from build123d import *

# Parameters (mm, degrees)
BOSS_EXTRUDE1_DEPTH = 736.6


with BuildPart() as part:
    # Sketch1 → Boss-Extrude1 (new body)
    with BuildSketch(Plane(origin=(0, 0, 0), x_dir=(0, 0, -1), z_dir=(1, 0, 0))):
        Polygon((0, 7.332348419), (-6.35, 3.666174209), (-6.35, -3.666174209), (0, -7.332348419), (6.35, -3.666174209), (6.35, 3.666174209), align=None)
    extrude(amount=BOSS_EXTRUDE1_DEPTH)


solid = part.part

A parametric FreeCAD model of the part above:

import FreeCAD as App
import Part
import Sketcher
Q = App.Units.Quantity

doc = App.newDocument("Part")
params = doc.addObject("Spreadsheet::Sheet", "Params")
for row, (alias, value) in enumerate([
    ("pad1_length", "29 in"),
], start=1):
    params.set(f"A{row}", alias)
    params.set(f"B{row}", "=" + value)
    params.setAlias(f"B{row}", alias)

body = doc.addObject("PartDesign::Body", "Body")

sketch1 = body.newObject("Sketcher::SketchObject", "Sketch")
sketch1.AttachmentSupport = (doc.getObject("YZ_Plane"), [""])
sketch1.MapMode = "FlatFace"
sketch1.addGeometry([
    Part.LineSegment(App.Vector(7, 0, 0), App.Vector(4, 6, 0)),
    Part.LineSegment(App.Vector(4, 6, 0), App.Vector(-4, 6, 0)),
    Part.LineSegment(App.Vector(-4, 6, 0), App.Vector(-7, 0, 0)),
    Part.LineSegment(App.Vector(-7, 0, 0), App.Vector(-4, -6, 0)),
    Part.LineSegment(App.Vector(-4, -6, 0), App.Vector(4, -6, 0)),
    Part.LineSegment(App.Vector(4, -6, 0), App.Vector(7, 0, 0)),
], False)
sketch1.addConstraint([
    Sketcher.Constraint("Coincident", 0, 2, 1, 1),
    Sketcher.Constraint("Coincident", 1, 2, 2, 1),
    Sketcher.Constraint("Coincident", 2, 2, 3, 1),
    Sketcher.Constraint("Coincident", 3, 2, 4, 1),
    Sketcher.Constraint("Coincident", 4, 2, 5, 1),
    Sketcher.Constraint("Coincident", 5, 2, 0, 1),
    Sketcher.Constraint("Horizontal", 1),
    Sketcher.Constraint("Horizontal", 4),
    Sketcher.Constraint("Symmetric", 0, 2, 3, 2, -1, 1),
    Sketcher.Constraint("Symmetric", 2, 2, 5, 2, -1, 1),
    Sketcher.Constraint("PointOnObject", 2, 2, -1),
    Sketcher.Constraint("Parallel", 2, 5),
    Sketcher.Constraint("Vertical", 1, 2, 3, 2),
    Sketcher.Constraint("Angle", 0, Q("120 deg")),
    Sketcher.Constraint("DistanceY", 3, 2, 1, 2, Q("0.5 in")),
    Sketcher.Constraint("DistanceX", 1, 2, 1, 1, Q("7.332348 mm")),
])
pad1 = body.newObject("PartDesign::Pad", "Pad")
pad1.Profile = sketch1
pad1.setExpression("Length", "Params.pad1_length")

doc.recompute()
